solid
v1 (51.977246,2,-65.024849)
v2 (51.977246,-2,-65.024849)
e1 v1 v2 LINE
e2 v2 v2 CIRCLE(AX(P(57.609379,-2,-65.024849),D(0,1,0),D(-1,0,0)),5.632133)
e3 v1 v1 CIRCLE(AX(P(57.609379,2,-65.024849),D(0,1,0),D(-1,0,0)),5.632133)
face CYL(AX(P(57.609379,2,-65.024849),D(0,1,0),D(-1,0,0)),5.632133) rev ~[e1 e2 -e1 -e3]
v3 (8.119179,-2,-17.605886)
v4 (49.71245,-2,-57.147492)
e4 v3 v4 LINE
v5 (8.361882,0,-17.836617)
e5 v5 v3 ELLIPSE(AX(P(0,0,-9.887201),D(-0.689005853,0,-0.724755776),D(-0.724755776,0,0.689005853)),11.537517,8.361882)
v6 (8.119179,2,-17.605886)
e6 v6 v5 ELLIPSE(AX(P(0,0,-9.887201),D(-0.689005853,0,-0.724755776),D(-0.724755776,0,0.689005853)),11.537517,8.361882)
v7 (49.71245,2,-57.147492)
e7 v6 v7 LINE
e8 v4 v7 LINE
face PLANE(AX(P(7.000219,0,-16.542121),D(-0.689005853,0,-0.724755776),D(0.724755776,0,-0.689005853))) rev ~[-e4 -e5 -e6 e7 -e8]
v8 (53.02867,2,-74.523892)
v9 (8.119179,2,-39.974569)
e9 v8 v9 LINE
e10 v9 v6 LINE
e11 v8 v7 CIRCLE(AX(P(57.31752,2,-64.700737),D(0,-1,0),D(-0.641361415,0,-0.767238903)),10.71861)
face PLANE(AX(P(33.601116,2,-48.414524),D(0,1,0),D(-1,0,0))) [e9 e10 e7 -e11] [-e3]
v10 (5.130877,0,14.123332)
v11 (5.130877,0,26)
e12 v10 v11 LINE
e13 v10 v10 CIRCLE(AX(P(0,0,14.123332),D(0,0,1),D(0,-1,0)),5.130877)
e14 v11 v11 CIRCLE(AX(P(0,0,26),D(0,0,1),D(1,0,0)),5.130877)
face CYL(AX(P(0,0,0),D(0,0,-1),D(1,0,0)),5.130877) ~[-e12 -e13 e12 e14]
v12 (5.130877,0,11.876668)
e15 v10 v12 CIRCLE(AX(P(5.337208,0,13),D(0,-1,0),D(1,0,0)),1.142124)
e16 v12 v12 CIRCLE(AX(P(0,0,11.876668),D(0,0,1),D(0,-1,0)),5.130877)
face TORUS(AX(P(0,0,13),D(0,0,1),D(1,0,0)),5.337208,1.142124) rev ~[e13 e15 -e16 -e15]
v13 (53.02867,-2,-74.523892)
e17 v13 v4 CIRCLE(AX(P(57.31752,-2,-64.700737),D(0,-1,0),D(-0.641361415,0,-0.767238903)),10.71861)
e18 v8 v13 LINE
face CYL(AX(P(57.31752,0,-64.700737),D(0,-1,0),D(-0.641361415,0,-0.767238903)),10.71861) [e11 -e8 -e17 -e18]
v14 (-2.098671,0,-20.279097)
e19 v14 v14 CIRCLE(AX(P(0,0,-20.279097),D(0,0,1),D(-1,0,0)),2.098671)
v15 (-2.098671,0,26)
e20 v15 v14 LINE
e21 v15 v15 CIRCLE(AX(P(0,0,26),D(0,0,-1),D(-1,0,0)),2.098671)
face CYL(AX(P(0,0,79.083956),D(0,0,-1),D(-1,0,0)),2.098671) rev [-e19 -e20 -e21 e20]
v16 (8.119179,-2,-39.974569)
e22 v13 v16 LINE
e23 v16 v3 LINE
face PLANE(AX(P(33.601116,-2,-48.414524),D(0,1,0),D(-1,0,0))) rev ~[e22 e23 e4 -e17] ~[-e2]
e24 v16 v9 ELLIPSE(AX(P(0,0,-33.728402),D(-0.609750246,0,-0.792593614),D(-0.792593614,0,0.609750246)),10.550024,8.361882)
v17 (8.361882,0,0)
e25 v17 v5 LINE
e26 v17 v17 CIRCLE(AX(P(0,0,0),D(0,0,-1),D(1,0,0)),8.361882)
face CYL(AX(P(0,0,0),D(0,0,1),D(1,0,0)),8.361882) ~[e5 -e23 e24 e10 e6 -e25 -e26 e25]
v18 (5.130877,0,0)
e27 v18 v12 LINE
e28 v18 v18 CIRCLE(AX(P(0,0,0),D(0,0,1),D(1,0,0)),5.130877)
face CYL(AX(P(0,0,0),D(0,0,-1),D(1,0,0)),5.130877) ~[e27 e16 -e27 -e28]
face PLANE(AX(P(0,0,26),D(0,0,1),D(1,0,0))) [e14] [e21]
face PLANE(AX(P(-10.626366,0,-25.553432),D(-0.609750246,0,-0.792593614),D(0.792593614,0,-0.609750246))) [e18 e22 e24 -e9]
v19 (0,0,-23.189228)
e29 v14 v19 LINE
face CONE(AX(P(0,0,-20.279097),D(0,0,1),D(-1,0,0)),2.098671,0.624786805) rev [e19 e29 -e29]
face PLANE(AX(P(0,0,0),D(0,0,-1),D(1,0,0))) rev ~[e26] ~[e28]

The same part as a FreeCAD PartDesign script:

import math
import FreeCAD as App
import Part
import Sketcher

V = App.Vector
Q = App.Units.Quantity

doc = App.newDocument("Part")
body = doc.addObject("PartDesign::Body", "Body")

sketch1 = body.newObject("Sketcher::SketchObject", "Sketch")
sketch1.AttachmentSupport = (doc.getObject("XY_Plane"), [""])
sketch1.MapMode = "FlatFace"
sketch1.addGeometry(Part.Circle(V(0, 0, 0), V(0, 0, 1), 5.130877), False)
sketch1.addConstraint([
    Sketcher.Constraint("Coincident", 0, 3, -1, 1),
    Sketcher.Constraint("Diameter", 0, Q("10.261754 mm")),
])
pad1 = body.newObject("PartDesign::Pad", "Pad")
pad1.Profile = sketch1
pad1.Length = 26

sketch2 = body.newObject("Sketcher::SketchObject", "Sketch001")
sketch2.AttachmentSupport = (doc.getObject("XZ_Plane"), [""])
sketch2.MapMode = "FlatFace"
sketch2.addGeometry(Part.Circle(V(5.337208, 13, 0), V(0, 0, 1), 1.142124), False)
sketch2.addConstraint([
    Sketcher.Constraint("DistanceY", -1, 1, 0, 3, Q("13 mm")),
    Sketcher.Constraint("Diameter", 0, Q("2.284248 mm")),
    Sketcher.Constraint("DistanceX", -1, 1, 0, 3, Q("5.337208 mm")),
])
groove = body.newObject("PartDesign::Groove", "Groove")
groove.Profile = sketch2
groove.ReferenceAxis = (sketch2, ["V_Axis"])
groove.Angle = 360

sketch3 = body.newObject("Sketcher::SketchObject", "Sketch002")
sketch3.AttachmentSupport = (doc.getObject("XY_Plane"), [""])
sketch3.MapMode = "FlatFace"
sketch3.addGeometry(Part.Circle(V(0, 0, 0), V(0, 0, 1), 8.361882), False)
sketch3.addConstraint([
    Sketcher.Constraint("Coincident", 0, 3, -1, 1),
    Sketcher.Constraint("Diameter", 0, Q("16.723764 mm")),
])
pad2 = body.newObject("PartDesign::Pad", "Pad001")
pad2.Profile = sketch3
pad2.Length = 40
pad2.Reversed = True

sketch4 = body.newObject("Sketcher::SketchObject", "Sketch003")
sketch4.AttachmentSupport = (doc.getObject("XZ_Plane"), [""])
sketch4.MapMode = "FlatFace"
sketch4.addGeometry([
    Part.LineSegment(V(-2.098671, 79.083956, 0), V(-2.098671, -20.279097, 0)),
    Part.LineSegment(V(-2.098671, -20.279097, 0), V(0, -23.189228, 0)),
    Part.LineSegment(V(0, -23.189228, 0), V(0, 79.083956, 0)),
    Part.LineSegment(V(0, 79.083956, 0), V(-2.098671, 79.083956, 0)),
], False)
sketch4.addConstraint([
    Sketcher.Constraint("Coincident", 0, 2, 1, 1),
    Sketcher.Constraint("Coincident", 1, 2, 2, 1),
    Sketcher.Constraint("Coincident", 2, 2, 3, 1),
    Sketcher.Constraint("Coincident", 3, 2, 0, 1),
    Sketcher.Constraint("Vertical", 0),
    Sketcher.Constraint("Vertical", 2),
    Sketcher.Constraint("Horizontal", 3),
    Sketcher.Constraint("PointOnObject", 1, 2, -2),
    Sketcher.Constraint("DistanceX", 3, 2, 3, 1, Q("2.098671 mm")),
    Sketcher.Constraint("DistanceY", 0, 2, 0, 1, Q("99.363053 mm")),
    Sketcher.Constraint("DistanceY", 2, 1, 2, 2, Q("102.273184 mm")),
    Sketcher.Constraint("DistanceY", 1, 2, -1, 1, Q("23.189228 mm")),
])
groove2 = body.newObject("PartDesign::Groove", "Groove001")
groove2.Profile = sketch4
groove2.ReferenceAxis = (sketch4, ["V_Axis"])
groove2.Angle = 360

sketch5 = body.newObject("Sketcher::SketchObject", "Sketch004")
sketch5.AttachmentSupport = (doc.getObject("XZ_Plane"), [""])
sketch5.MapMode = "FlatFace"
sketch5.addGeometry([
    Part.LineSegment(V(49.71245, -57.147492, 0), V(7.000219, -16.542121, 0)),
    Part.LineSegment(V(7.000219, -16.542121, 0), V(7.000219, -39.373556, 0)),
    Part.LineSegment(V(7.000219, -39.373556, 0), V(50.443017, -72.924472, 0)),
    Part.ArcOfCircle(Part.Circle(V(57.31752, -64.700737, 0), V(0, 0, 1), 10.71861), math.radians(-129.893412), math.radians(135.195888)),
], False)
sketch5.addConstraint([
    Sketcher.Constraint("Coincident", 0, 2, 1, 1),
    Sketcher.Constraint("Coincident", 1, 2, 2, 1),
    Sketcher.Constraint("Coincident", 2, 2, 3, 1),
    Sketcher.Constraint("Coincident", 3, 2, 0, 1),
    Sketcher.Constraint("Vertical", 1),
    Sketcher.Constraint("Radius", 3, Q("10.71861 mm")),
    Sketcher.Constraint("DistanceX", 0, 2, 3, 3, Q("50.317301 mm")),
    Sketcher.Constraint("Distance", 2, Q("54.89026 mm")),
    Sketcher.Constraint("DistanceY", 1, 2, 1, 1, Q("22.831435 mm")),
    Sketcher.Constraint("DistanceX", -1, 1, 3, 3, Q("57.31752 mm")),
    Sketcher.Constraint("DistanceY", 0, 2, -1, 1, Q("16.542121 mm")),
    Sketcher.Constraint("DistanceY", 2, 2, -1, 1, Q("72.924472 mm")),
    Sketcher.Constraint("DistanceX", -1, 1, 3, 2, Q("49.71245 mm")),
])
pad3 = body.newObject("PartDesign::Pad", "Pad002")
pad3.Profile = sketch5
pad3.Length = 4
pad3.Midplane = True

sketch6 = body.newObject("Sketcher::SketchObject", "Sketch005")
sketch6.AttachmentSupport = (doc.getObject("XZ_Plane"), [""])
sketch6.MapMode = "FlatFace"
sketch6.addGeometry([
    Part.LineSegment(V(62.605824, -81.891693, 0), V(-10.626366, -25.553432, 0)),
    Part.LineSegment(V(-10.626366, -25.553432, 0), V(-10.165777, -81.891693, 0)),
    Part.LineSegment(V(-10.165777, -81.891693, 0), V(62.605824, -81.891693, 0)),
], False)
sketch6.addConstraint([
    Sketcher.Constraint("Coincident", 0, 2, 1, 1),
    Sketcher.Constraint("Coincident", 1, 2, 2, 1),
    Sketcher.Constraint("Coincident", 2, 2, 0, 1),
    Sketcher.Constraint("Horizontal", 2),
    Sketcher.Constraint("DistanceX", 2, 1, 2, 2, Q("72.771601 mm")),
    Sketcher.Constraint("DistanceX", 0, 2, 1, 2, Q("0.460589 mm")),
    Sketcher.Constraint("DistanceY", 1, 2, 0, 2, Q("56.338261 mm")),
    Sketcher.Constraint("DistanceX", 0, 2, -1, 1, Q("10.626366 mm")),
    Sketcher.Constraint("DistanceY", 0, 2, -1, 1, Q("25.553432 mm")),
])
pocket1 = body.newObject("PartDesign::Pocket", "Pocket")
pocket1.Profile = sketch6
pocket1.Length = 21
pocket1.Midplane = True

sketch7 = body.newObject("Sketcher::SketchObject", "Sketch006")
sketch7.AttachmentSupport = (doc.getObject("XZ_Plane"), [""])
sketch7.MapMode = "FlatFace"
sketch7.AttachmentOffset = App.Placement(V(0, 0, -2), App.Rotation())
sketch7.addGeometry(Part.Circle(V(57.609379, -65.024849, 0), V(0, 0, 1), 5.632133), False)
sketch7.addConstraint([
    Sketcher.Constraint("Diameter", 0, Q("11.264266 mm")),
    Sketcher.Constraint("DistanceX", -1, 1, 0, 3, Q("57.609379 mm")),
    Sketcher.Constraint("DistanceY", 0, 3, -1, 1, Q("65.024849 mm")),
])
pocket2 = body.newObject("PartDesign::Pocket", "Pocket001")
pocket2.Profile = sketch7
pocket2.Length = 5
pocket2.Reversed = True

doc.recompute()
